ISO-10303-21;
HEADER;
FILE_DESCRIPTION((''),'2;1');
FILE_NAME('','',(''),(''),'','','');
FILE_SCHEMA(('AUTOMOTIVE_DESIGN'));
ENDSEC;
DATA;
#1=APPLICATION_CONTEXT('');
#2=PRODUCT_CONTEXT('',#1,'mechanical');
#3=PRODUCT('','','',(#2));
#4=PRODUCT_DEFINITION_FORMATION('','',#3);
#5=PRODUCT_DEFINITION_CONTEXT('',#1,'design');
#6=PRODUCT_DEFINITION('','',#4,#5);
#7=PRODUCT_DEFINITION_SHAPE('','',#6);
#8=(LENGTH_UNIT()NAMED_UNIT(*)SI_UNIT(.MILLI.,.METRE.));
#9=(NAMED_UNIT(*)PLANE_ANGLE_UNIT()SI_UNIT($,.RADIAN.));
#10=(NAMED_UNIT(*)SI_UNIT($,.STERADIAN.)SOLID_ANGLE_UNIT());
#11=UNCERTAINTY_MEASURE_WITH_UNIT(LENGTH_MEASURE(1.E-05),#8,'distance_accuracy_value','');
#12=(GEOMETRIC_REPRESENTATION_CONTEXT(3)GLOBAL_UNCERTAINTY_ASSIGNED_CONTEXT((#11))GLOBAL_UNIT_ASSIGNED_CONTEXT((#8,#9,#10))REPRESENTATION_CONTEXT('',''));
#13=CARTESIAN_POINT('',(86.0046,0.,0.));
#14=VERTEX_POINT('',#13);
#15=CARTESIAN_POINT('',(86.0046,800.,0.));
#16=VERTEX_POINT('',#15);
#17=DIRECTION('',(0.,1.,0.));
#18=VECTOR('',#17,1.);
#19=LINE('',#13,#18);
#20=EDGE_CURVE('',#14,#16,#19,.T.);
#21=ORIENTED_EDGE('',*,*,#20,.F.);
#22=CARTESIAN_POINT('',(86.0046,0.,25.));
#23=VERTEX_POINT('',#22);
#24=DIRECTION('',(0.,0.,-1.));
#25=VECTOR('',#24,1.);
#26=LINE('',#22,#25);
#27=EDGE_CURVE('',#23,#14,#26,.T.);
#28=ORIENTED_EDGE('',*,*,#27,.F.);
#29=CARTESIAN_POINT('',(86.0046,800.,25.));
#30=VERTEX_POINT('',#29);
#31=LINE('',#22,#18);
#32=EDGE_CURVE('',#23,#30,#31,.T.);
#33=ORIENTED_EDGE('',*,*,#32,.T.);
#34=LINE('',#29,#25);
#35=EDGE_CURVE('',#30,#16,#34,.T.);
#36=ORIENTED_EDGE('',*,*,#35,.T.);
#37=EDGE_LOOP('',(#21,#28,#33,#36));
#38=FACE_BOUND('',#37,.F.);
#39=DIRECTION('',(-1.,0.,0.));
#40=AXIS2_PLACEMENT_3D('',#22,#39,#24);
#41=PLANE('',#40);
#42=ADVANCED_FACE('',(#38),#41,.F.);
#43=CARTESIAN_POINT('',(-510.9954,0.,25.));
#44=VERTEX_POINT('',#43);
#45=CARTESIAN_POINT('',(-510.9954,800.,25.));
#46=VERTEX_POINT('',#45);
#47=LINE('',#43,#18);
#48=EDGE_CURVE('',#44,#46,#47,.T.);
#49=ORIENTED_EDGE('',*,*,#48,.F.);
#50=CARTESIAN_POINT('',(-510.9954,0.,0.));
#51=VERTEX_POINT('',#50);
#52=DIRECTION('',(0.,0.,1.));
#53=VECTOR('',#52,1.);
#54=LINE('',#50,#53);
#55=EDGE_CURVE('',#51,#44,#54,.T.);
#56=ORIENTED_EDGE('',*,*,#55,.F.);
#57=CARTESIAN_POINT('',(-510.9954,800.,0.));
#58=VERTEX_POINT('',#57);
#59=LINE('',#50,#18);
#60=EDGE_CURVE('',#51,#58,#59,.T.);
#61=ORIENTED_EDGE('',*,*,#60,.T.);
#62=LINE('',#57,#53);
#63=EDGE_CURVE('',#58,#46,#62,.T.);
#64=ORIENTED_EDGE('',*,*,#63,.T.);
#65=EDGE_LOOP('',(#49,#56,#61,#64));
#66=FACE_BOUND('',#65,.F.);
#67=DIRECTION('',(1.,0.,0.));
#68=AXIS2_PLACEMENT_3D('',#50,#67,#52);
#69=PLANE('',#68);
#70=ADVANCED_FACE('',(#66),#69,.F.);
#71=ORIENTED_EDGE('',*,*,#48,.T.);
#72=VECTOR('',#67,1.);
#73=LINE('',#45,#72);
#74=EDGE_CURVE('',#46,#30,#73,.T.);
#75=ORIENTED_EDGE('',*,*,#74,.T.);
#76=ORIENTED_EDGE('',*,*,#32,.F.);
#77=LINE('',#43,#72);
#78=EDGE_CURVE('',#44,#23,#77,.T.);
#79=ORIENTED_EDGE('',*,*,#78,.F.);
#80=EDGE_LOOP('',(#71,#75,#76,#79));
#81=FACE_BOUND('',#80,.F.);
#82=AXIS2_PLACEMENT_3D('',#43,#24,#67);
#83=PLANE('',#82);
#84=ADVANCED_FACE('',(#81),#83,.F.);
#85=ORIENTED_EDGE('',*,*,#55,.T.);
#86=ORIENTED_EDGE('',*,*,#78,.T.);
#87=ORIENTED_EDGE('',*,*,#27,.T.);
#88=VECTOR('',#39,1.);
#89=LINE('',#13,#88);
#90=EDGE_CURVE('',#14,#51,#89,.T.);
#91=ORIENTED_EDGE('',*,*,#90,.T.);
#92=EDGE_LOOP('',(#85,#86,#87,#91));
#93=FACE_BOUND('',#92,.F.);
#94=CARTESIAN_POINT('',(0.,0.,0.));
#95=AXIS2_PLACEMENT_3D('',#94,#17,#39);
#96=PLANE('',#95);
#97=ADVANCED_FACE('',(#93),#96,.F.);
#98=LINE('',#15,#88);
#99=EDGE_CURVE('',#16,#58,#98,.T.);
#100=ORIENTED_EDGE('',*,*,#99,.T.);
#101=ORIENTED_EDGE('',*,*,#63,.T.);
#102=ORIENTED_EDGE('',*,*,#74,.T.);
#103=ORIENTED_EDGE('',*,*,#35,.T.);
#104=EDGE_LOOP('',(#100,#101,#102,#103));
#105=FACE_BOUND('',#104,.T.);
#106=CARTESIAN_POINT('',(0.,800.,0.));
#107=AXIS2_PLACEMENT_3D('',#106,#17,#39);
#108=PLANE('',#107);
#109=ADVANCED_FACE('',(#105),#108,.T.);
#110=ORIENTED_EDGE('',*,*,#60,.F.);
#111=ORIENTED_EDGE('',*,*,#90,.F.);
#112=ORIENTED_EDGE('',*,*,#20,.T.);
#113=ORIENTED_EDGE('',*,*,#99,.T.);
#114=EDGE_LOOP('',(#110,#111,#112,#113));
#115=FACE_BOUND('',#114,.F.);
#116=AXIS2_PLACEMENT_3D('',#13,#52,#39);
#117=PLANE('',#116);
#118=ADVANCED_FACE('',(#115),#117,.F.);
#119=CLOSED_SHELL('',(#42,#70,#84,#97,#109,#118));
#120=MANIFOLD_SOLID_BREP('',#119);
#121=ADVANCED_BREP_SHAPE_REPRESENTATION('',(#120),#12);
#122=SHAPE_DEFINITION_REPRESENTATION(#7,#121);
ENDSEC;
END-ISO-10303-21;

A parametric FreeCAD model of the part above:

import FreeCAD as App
import Part
import Sketcher
from FreeCAD import Vector
Q = App.Units.Quantity


def add_polygon(sketch, points):
    """Adds a closed chain of lines whose ends are joined by coincident constraints."""
    first, n = sketch.GeometryCount, len(points)
    for a, b in zip(points, points[1:] + points[:1]):
        sketch.addGeometry(Part.LineSegment(App.Vector(*a, 0), App.Vector(*b, 0)), False)
    for i in range(n):
        sketch.addConstraint(Sketcher.Constraint("Coincident", first + i, 2, first + (i + 1) % n, 1))

doc = App.newDocument("Part")
params = doc.addObject("Spreadsheet::Sheet", "Params")
for row, (alias, value) in enumerate([
    ("sketch1_width", "597 mm"),
    ("sketch1_height", "25 mm"),
    ("pad1_length", "800 mm"),
], start=1):
    params.set(f"A{row}", alias)
    params.set(f"B{row}", "=" + value)
    params.setAlias(f"B{row}", alias)

body = doc.addObject("PartDesign::Body", "Body")

sketch1 = body.newObject("Sketcher::SketchObject", "Sketch")
sketch1.AttachmentSupport = (doc.getObject("XZ_Plane"), [""])
sketch1.MapMode = "FlatFace"
add_polygon(sketch1, [(86, 25), (86, 0), (-511, 0), (-511, 25)])
sketch1.addConstraint(Sketcher.Constraint("Vertical", 0))
sketch1.addConstraint(Sketcher.Constraint("Horizontal", 1))
sketch1.addConstraint(Sketcher.Constraint("Vertical", 2))
sketch1.addConstraint(Sketcher.Constraint("Horizontal", 3))
sketch1.addConstraint(Sketcher.Constraint("PointOnObject", 0, 2, -1))
sketch1.addConstraint(Sketcher.Constraint("DistanceX", 1, 2, 1, 1, Q("597 mm")))
sketch1.addConstraint(Sketcher.Constraint("DistanceY", 0, 2, 0, 1, Q("25 mm")))
sketch1.addConstraint(Sketcher.Constraint("DistanceX", -1, 1, 0, 2, Q("86.0046 mm")))
sketch1.setExpression("Constraints[9]", "Params.sketch1_width")
sketch1.setExpression("Constraints[10]", "Params.sketch1_height")
pad1 = body.newObject("PartDesign::Pad", "Pad")
pad1.Profile = sketch1
pad1.setExpression("Length", "Params.pad1_length")
pad1.Reversed = True

doc.recompute()
